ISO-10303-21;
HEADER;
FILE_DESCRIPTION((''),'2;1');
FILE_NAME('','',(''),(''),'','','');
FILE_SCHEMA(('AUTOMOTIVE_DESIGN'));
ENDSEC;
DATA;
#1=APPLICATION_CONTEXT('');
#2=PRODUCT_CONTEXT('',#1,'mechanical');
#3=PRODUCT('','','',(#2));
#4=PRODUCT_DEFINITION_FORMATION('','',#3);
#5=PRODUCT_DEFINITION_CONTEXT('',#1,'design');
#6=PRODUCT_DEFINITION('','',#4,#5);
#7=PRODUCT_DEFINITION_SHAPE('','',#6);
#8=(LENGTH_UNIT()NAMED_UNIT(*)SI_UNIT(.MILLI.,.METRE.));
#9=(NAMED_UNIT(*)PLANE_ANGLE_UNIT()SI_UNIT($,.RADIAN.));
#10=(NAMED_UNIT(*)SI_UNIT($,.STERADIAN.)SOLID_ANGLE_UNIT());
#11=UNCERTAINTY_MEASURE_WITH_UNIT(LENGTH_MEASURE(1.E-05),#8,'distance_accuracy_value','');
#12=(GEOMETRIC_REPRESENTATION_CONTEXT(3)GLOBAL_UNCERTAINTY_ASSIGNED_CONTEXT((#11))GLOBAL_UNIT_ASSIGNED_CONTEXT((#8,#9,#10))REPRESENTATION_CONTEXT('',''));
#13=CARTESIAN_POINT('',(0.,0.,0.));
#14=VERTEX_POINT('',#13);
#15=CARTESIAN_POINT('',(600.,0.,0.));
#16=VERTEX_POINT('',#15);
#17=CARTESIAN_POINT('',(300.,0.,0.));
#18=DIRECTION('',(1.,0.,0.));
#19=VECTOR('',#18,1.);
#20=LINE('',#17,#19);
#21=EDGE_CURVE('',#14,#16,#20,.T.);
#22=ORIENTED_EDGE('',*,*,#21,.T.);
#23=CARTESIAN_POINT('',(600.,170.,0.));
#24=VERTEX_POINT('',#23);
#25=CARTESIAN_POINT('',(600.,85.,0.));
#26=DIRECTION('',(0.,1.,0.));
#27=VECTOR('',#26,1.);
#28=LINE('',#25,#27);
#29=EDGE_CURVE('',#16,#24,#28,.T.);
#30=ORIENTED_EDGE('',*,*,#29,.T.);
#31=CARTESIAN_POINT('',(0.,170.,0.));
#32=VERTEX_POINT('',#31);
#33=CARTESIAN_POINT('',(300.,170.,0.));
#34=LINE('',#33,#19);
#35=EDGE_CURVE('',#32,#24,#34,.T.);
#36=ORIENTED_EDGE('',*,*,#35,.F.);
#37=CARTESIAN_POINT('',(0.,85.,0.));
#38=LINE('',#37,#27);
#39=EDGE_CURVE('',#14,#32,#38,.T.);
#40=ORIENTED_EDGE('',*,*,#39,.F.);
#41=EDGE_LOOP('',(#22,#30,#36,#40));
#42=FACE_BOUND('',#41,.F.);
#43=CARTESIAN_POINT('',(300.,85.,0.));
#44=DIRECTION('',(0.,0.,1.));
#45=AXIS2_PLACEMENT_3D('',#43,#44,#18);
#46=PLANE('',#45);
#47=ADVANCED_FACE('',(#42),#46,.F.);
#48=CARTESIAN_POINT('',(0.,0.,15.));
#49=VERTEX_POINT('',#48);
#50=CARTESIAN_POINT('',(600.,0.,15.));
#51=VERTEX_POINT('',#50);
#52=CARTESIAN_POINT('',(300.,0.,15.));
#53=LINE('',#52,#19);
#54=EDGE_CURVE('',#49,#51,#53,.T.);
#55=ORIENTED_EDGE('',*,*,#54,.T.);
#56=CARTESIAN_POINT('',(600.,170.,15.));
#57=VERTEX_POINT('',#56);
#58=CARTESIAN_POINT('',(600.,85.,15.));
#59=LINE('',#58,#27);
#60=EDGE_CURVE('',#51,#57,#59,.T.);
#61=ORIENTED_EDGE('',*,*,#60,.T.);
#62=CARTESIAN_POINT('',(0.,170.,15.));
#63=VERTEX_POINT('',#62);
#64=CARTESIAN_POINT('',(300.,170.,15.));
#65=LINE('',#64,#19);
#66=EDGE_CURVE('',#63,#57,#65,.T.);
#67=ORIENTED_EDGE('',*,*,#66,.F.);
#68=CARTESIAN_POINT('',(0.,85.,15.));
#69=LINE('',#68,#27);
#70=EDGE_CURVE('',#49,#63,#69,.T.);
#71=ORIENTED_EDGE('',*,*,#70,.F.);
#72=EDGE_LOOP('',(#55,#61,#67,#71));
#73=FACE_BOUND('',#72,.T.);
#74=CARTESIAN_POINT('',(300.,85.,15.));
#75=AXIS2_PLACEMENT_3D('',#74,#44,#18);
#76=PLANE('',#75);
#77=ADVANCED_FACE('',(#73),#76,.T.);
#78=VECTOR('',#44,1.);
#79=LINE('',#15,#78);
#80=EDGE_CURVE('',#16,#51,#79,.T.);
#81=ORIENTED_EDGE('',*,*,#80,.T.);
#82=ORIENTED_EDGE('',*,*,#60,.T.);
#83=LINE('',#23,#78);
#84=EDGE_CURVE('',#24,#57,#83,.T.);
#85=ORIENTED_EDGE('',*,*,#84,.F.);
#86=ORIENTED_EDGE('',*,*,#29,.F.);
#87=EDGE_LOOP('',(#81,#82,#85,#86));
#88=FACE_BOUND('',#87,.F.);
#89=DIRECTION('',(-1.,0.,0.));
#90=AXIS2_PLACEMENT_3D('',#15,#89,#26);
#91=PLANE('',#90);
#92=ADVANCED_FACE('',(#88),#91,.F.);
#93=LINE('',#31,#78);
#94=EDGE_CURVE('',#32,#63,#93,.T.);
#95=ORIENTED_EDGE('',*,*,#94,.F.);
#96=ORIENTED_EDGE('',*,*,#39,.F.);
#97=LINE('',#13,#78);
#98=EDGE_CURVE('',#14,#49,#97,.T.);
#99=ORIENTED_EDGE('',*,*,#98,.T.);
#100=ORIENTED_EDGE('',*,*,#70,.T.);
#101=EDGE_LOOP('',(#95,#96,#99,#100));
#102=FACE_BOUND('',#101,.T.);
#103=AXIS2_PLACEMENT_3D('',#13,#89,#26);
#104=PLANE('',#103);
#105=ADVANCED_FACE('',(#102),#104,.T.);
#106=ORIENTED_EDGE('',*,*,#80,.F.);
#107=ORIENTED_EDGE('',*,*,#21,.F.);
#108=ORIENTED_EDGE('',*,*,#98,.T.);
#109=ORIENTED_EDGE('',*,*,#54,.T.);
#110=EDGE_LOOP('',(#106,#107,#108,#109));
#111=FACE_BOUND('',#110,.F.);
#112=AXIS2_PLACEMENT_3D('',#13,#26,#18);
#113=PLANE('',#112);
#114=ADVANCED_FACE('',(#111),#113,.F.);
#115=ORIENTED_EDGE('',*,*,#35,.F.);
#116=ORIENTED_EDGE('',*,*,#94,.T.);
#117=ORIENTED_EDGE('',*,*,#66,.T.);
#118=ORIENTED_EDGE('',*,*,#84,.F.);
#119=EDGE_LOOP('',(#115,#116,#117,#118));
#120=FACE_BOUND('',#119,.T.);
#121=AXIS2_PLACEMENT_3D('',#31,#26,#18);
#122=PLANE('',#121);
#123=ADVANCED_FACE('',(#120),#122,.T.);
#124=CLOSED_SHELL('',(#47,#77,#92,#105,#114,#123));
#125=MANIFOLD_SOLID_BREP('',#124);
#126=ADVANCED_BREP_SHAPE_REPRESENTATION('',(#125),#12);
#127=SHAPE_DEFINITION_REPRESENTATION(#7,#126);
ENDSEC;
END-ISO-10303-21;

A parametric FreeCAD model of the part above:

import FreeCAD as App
import Part
import Sketcher

V = App.Vector


def add_polygon(sketch, points):
    """Adds a closed chain of lines whose ends are joined by coincident constraints."""
    first, n = sketch.GeometryCount, len(points)
    for a, b in zip(points, points[1:] + points[:1]):
        sketch.addGeometry(Part.LineSegment(App.Vector(*a, 0), App.Vector(*b, 0)), False)
    for i in range(n):
        sketch.addConstraint(Sketcher.Constraint("Coincident", first + i, 2, first + (i + 1) % n, 1))

doc = App.newDocument("Part")
body = doc.addObject("PartDesign::Body", "Body")

sketch1 = body.newObject("Sketcher::SketchObject", "Sketch")
sketch1.AttachmentSupport = (doc.getObject("XY_Plane"), [""])
sketch1.MapMode = "FlatFace"
add_polygon(sketch1, [(0, 170), (0, 0), (600, 0), (600, 170)])
sketch1.addConstraint(Sketcher.Constraint("Vertical", 0))
sketch1.addConstraint(Sketcher.Constraint("Horizontal", 1))
sketch1.addConstraint(Sketcher.Constraint("Vertical", 2))
sketch1.addConstraint(Sketcher.Constraint("Horizontal", 3))
sketch1.addConstraint(Sketcher.Constraint("Coincident", 0, 2, -1, 1))
sketch1.addConstraint(Sketcher.Constraint("DistanceX", 1, 1, 1, 2, 600.0))
sketch1.addConstraint(Sketcher.Constraint("DistanceY", 0, 2, 0, 1, 170.0))
pad1 = body.newObject("PartDesign::Pad", "Pad")
pad1.Profile = sketch1
pad1.Length = 15

doc.recompute()
